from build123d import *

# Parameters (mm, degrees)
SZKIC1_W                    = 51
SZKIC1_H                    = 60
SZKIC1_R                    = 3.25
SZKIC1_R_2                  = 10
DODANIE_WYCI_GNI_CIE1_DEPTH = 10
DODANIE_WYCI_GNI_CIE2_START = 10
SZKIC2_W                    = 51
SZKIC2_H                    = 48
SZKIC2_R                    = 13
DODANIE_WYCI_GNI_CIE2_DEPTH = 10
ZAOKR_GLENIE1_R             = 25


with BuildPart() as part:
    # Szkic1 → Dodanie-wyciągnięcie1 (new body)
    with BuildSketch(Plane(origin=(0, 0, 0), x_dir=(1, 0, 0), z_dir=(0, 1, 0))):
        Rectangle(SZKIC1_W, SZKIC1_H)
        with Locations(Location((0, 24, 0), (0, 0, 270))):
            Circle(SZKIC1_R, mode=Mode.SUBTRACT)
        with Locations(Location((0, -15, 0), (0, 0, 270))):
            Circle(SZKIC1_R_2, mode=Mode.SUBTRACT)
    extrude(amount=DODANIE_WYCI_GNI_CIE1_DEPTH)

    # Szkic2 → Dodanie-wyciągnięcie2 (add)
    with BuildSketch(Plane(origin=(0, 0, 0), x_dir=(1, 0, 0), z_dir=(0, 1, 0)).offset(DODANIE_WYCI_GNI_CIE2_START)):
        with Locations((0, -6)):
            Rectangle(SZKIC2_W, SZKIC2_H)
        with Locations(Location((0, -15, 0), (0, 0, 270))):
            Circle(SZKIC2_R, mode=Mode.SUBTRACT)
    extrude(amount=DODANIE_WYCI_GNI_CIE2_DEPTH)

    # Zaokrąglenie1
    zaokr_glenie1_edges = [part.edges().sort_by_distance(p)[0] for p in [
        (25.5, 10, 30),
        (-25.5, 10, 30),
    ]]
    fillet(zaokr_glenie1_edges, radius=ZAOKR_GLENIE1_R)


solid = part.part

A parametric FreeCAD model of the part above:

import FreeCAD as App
import Part
import Sketcher
from FreeCAD import Vector


def edges_at(feature, points):
    """Names of the edges that pass closest to the given points."""
    edges = feature.Shape.Edges
    near = lambda p: min(range(len(edges)), key=lambda i: edges[i].distToShape(Part.Vertex(*p))[0])
    return sorted({f"Edge{near(p) + 1}" for p in points})


def add_polygon(sketch, points):
    """Adds a closed chain of lines whose ends are joined by coincident constraints."""
    first, n = sketch.GeometryCount, len(points)
    for a, b in zip(points, points[1:] + points[:1]):
        sketch.addGeometry(Part.LineSegment(App.Vector(*a, 0), App.Vector(*b, 0)), False)
    for i in range(n):
        sketch.addConstraint(Sketcher.Constraint("Coincident", first + i, 2, first + (i + 1) % n, 1))

doc = App.newDocument("Part")
body = doc.addObject("PartDesign::Body", "Body")

sketch1 = body.newObject("Sketcher::SketchObject", "Sketch")
sketch1.AttachmentSupport = (doc.getObject("XZ_Plane"), [""])
sketch1.MapMode = "FlatFace"
add_polygon(sketch1, [(-25.5, -30), (-25.5, 30), (25.5, 30), (25.5, -30)])
sketch1.addGeometry(Part.Circle(Vector(0, 15, 0), Vector(0, 0, 1), 10), False)
sketch1.addGeometry(Part.Circle(Vector(0, -24, 0), Vector(0, 0, 1), 3.2), False)
sketch1.addConstraint([
    Sketcher.Constraint("Vertical", 0),
    Sketcher.Constraint("Horizontal", 1),
    Sketcher.Constraint("Vertical", 2),
    Sketcher.Constraint("Horizontal", 3),
    Sketcher.Constraint("Symmetric", 0, 2, 2, 2, -1, 1),
    Sketcher.Constraint("PointOnObject", 4, 3, -2),
    Sketcher.Constraint("PointOnObject", 5, 3, -2),
    Sketcher.Constraint("Diameter", 4, 20.0),
    Sketcher.Constraint("Diameter", 5, 6.5),
    Sketcher.Constraint("DistanceX", 1, 1, 1, 2, 51.0),
    Sketcher.Constraint("DistanceY", 0, 1, 0, 2, 60.0),
    Sketcher.Constraint("DistanceY", -1, 1, 4, 3, 15.0),
    Sketcher.Constraint("DistanceY", 5, 3, -1, 1, 24.0),
])
pad1 = body.newObject("PartDesign::Pad", "Pad")
pad1.Profile = sketch1
pad1.Length = 10
pad1.Reversed = True

sketch2 = body.newObject("Sketcher::SketchObject", "Sketch001")
sketch2.AttachmentSupport = (doc.getObject("XZ_Plane"), [""])
sketch2.MapMode = "FlatFace"
sketch2.AttachmentOffset = App.Placement(Vector(0, 0, -10), App.Rotation())
add_polygon(sketch2, [(-26, -18), (-26, 30), (26, 30), (26, -18)])
sketch2.addGeometry(Part.Circle(Vector(0, 15, 0), Vector(0, 0, 1), 13), False)
sketch2.addConstraint([
    Sketcher.Constraint("Vertical", 0),
    Sketcher.Constraint("Horizontal", 1),
    Sketcher.Constraint("Vertical", 2),
    Sketcher.Constraint("Horizontal", 3),
    Sketcher.Constraint("PointOnObject", 4, 3, -2),
    Sketcher.Constraint("Diameter", 4, 26.0),
    Sketcher.Constraint("DistanceX", 1, 1, 1, 2, 51.0),
    Sketcher.Constraint("DistanceY", 0, 1, 0, 2, 48.0),
    Sketcher.Constraint("DistanceY", -1, 1, 4, 3, 15.0),
    Sketcher.Constraint("DistanceY", -1, 1, 0, 2, 30.0),
    Sketcher.Constraint("DistanceX", 0, 2, -1, 1, 25.5),
])
pad2 = body.newObject("PartDesign::Pad", "Pad001")
pad2.Profile = sketch2
pad2.Length = 10
pad2.Reversed = True
doc.recompute()

fillet = body.newObject("PartDesign::Fillet", "Fillet")
fillet.Base = (pad2, edges_at(pad2, [(25.5, 10, 30), (-25.5, 10, 30)]))
fillet.Radius = 25

doc.recompute()
